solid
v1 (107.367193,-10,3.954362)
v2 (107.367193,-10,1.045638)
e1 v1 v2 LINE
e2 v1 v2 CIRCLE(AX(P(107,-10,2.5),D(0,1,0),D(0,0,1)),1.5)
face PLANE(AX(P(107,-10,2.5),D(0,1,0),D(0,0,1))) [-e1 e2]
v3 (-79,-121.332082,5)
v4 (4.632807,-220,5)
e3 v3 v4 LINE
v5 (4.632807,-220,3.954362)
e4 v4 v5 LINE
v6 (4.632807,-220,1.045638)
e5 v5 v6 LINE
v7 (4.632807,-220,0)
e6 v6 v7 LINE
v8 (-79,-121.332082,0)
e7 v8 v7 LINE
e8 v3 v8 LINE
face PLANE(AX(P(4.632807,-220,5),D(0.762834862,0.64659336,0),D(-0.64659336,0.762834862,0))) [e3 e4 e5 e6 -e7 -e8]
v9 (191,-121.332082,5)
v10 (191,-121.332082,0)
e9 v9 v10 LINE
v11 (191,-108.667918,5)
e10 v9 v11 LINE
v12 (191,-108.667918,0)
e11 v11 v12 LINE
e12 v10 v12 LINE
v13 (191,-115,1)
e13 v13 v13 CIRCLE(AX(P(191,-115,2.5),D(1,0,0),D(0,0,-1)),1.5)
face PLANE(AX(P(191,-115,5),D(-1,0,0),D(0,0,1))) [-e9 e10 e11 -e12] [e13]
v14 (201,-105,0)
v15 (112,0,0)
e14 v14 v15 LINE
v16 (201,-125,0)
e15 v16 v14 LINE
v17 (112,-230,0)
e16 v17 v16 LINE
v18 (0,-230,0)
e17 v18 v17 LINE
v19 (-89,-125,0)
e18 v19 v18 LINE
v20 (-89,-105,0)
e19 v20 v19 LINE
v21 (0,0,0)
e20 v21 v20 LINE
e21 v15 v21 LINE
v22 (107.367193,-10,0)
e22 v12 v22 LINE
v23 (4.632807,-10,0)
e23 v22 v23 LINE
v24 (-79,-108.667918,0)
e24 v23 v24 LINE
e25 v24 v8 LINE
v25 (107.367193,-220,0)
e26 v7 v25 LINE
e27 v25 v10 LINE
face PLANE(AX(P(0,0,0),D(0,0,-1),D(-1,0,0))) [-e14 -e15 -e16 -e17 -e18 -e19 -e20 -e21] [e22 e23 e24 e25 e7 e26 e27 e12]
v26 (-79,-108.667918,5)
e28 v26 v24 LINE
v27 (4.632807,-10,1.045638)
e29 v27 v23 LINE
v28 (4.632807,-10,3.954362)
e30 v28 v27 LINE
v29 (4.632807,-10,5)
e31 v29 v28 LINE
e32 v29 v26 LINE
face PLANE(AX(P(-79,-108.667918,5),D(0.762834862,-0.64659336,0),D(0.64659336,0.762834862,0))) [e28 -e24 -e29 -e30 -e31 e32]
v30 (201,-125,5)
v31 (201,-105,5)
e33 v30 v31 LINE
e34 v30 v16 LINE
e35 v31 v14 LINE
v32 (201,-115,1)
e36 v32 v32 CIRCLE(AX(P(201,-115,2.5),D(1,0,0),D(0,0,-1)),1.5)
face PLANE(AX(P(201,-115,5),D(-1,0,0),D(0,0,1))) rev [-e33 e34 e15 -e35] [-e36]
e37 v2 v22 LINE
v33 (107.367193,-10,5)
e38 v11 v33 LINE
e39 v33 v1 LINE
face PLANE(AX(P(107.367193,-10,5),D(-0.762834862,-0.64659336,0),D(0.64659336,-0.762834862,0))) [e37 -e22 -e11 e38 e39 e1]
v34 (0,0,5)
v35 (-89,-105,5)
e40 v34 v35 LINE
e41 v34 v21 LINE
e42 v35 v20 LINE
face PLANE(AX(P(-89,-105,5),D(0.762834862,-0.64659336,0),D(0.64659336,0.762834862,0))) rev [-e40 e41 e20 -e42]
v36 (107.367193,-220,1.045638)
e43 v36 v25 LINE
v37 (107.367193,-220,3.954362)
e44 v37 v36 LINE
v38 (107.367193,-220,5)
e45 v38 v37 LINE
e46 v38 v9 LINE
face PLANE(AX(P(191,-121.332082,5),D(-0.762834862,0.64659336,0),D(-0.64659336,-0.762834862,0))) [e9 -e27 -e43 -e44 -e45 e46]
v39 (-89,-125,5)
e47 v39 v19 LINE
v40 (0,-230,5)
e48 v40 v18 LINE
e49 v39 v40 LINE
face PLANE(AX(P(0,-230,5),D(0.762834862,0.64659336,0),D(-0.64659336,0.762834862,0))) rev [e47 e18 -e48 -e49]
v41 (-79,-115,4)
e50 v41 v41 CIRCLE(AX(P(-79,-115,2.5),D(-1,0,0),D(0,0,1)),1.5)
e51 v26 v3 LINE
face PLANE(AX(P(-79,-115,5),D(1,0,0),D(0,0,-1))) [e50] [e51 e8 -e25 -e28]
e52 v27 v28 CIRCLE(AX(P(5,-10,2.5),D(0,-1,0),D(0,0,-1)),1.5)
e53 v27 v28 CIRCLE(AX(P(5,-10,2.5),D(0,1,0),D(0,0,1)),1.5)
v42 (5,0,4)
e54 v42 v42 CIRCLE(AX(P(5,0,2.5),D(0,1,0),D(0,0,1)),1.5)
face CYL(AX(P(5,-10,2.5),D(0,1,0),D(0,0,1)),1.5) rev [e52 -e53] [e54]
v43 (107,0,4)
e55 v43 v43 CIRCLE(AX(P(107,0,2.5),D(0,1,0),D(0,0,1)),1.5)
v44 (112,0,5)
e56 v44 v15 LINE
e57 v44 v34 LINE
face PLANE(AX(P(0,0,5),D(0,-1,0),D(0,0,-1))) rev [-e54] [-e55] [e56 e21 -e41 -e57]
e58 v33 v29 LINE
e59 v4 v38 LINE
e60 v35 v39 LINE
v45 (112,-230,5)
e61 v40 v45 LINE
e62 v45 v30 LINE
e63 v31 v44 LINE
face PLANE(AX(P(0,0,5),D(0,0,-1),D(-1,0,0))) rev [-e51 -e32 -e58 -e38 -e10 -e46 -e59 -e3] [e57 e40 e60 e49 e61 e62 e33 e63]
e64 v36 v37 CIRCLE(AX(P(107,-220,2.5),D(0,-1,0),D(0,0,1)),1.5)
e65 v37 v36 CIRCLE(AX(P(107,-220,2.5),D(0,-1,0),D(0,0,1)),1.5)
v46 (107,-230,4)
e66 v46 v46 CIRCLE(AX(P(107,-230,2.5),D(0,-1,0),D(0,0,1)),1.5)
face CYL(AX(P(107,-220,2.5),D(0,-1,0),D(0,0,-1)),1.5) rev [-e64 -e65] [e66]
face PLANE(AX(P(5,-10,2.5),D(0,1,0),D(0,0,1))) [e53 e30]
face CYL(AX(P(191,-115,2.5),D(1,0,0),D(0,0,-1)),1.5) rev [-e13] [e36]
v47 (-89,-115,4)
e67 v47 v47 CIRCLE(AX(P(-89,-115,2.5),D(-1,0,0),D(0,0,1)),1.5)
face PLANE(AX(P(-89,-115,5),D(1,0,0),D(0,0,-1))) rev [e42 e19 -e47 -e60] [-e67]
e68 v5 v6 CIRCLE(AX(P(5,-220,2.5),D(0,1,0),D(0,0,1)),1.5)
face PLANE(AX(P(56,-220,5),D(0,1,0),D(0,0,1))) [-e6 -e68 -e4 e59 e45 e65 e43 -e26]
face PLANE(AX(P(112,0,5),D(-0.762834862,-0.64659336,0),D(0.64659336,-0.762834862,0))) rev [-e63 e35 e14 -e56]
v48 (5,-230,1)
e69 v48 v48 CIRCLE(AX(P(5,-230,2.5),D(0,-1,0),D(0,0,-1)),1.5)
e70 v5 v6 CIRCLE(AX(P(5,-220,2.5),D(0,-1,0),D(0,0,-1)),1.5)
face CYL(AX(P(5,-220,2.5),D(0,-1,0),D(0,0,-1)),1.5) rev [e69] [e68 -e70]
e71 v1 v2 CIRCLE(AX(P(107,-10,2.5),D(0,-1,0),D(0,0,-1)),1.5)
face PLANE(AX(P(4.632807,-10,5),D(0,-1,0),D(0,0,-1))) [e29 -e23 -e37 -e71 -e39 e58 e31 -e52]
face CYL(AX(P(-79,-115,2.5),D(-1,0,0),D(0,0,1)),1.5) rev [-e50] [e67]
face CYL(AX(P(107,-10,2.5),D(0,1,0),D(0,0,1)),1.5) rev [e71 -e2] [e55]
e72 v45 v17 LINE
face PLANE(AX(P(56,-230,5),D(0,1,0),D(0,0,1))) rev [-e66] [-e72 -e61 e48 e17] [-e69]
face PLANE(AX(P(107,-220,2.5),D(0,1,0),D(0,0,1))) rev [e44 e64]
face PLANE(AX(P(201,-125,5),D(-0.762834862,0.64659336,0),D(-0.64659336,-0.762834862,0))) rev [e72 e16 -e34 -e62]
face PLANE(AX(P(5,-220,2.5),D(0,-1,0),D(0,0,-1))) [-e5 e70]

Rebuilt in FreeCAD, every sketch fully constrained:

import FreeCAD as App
import Part
import Sketcher
Q = App.Units.Quantity


def add_polygon(sketch, points):
    """Adds a closed chain of lines whose ends are joined by coincident constraints."""
    first, n = sketch.GeometryCount, len(points)
    for a, b in zip(points, points[1:] + points[:1]):
        sketch.addGeometry(Part.LineSegment(App.Vector(*a, 0), App.Vector(*b, 0)), False)
    for i in range(n):
        sketch.addConstraint(Sketcher.Constraint("Coincident", first + i, 2, first + (i + 1) % n, 1))

doc = App.newDocument("Part")
body = doc.addObject("PartDesign::Body", "Body")

# Sketch on XY plane
sketch1 = doc.addObject("Sketcher::SketchObject", "Sketch")
body.addObject(sketch1)
sketch1.AttachmentSupport = (doc.XY_Plane, [""])
sketch1.MapMode = "FlatFace"
add_polygon(sketch1, [(112, 0), (0, 0), (-89, -105), (-89, -125), (0, -230), (112, -230), (201, -125), (201, -105)])  # lines 0-7
add_polygon(sketch1, [(4.632807, -10), (107.367193, -10), (191, -108.667918), (191, -121.332082), (107.367193, -220), (4.632807, -220), (-79, -121.332082), (-79, -108.667918)])  # lines 8-15
sketch1.addConstraint([
    Sketcher.Constraint("Horizontal", 0),
    Sketcher.Constraint("Vertical", 2),
    Sketcher.Constraint("Horizontal", 4),
    Sketcher.Constraint("Vertical", 6),
    Sketcher.Constraint("Horizontal", 8),
    Sketcher.Constraint("Vertical", 10),
    Sketcher.Constraint("Horizontal", 12),
    Sketcher.Constraint("Vertical", 14),
    Sketcher.Constraint("Coincident", 0, 2, -1, 1),
    Sketcher.Constraint("PointOnObject", 3, 2, -2),
    Sketcher.Constraint("Parallel", 1, 5),
    Sketcher.Constraint("Parallel", 3, 7),
    Sketcher.Constraint("Parallel", 7, 9),
    Sketcher.Constraint("Parallel", 5, 11),
    Sketcher.Constraint("Parallel", 9, 13),
    Sketcher.Constraint("Parallel", 11, 15),
    Sketcher.Constraint("Horizontal", 2, 2, 5, 2),
    Sketcher.Constraint("Horizontal", 1, 2, 6, 2),
    Sketcher.Constraint("Horizontal", 10, 2, 13, 2),
    Sketcher.Constraint("Horizontal", 9, 2, 14, 2),
    Sketcher.Constraint("Vertical", 4, 2, 7, 2),
    Sketcher.Constraint("Vertical", 8, 2, 11, 2),
    Sketcher.Constraint("DistanceX", 0, 2, 0, 1, Q("112 mm")),
    Sketcher.Constraint("DistanceY", 2, 2, 2, 1, Q("20 mm")),
    Sketcher.Constraint("DistanceX", 1, 2, -1, 1, Q("89 mm")),
    Sketcher.Constraint("DistanceY", 1, 2, -1, 1, Q("105 mm")),
    Sketcher.Constraint("DistanceY", 8, 2, -1, 1, Q("10 mm")),
    Sketcher.Constraint("DistanceX", -1, 1, 9, 2, Q("191 mm")),
    Sketcher.Constraint("DistanceY", 11, 2, -1, 1, Q("220 mm")),
    Sketcher.Constraint("DistanceX", 13, 2, -1, 1, Q("79 mm")),
    Sketcher.Constraint("DistanceX", 8, 1, 8, 2, Q("102.734387 mm")),
])
pad1 = doc.addObject("PartDesign::Pad", "Pad")
body.addObject(pad1)
pad1.Profile = sketch1
pad1.Length = 5

# Sketch on XZ plane
sketch2 = doc.addObject("Sketcher::SketchObject", "Sketch001")
body.addObject(sketch2)
sketch2.AttachmentSupport = (doc.XZ_Plane, [""])
sketch2.MapMode = "FlatFace"
sketch2.addGeometry([
    Part.Circle(App.Vector(5, 2.5, 0), App.Vector(0, 0, 1), 1.5),
    Part.Circle(App.Vector(107, 2.5, 0), App.Vector(0, 0, 1), 1.5),
], False)
sketch2.addConstraint([
    Sketcher.Constraint("Equal", 0, 1),
    Sketcher.Constraint("Horizontal", 0, 3, 1, 3),
    Sketcher.Constraint("Diameter", 0, Q("3 mm")),
    Sketcher.Constraint("DistanceX", -1, 1, 0, 3, Q("5 mm")),
    Sketcher.Constraint("DistanceX", -1, 1, 1, 3, Q("107 mm")),
    Sketcher.Constraint("DistanceY", -1, 1, 0, 3, Q("2.5 mm")),
])
pocket1 = doc.addObject("PartDesign::Pocket", "Pocket")
body.addObject(pocket1)
pocket1.Profile = sketch2
pocket1.Length = 10
pocket1.Reversed = True

# Sketch on XZ plane
sketch3 = doc.addObject("Sketcher::SketchObject", "Sketch002")
body.addObject(sketch3)
sketch3.AttachmentSupport = (doc.XZ_Plane, [""])
sketch3.MapMode = "FlatFace"
sketch3.AttachmentOffset = App.Placement(App.Vector(0, 0, 220), App.Rotation())
sketch3.addGeometry([
    Part.Circle(App.Vector(5, 2.5, 0), App.Vector(0, 0, 1), 1.5),
    Part.Circle(App.Vector(107, 2.5, 0), App.Vector(0, 0, 1), 1.5),
], False)
sketch3.addConstraint([
    Sketcher.Constraint("Equal", 0, 1),
    Sketcher.Constraint("Horizontal", 0, 3, 1, 3),
    Sketcher.Constraint("Diameter", 0, Q("3 mm")),
    Sketcher.Constraint("DistanceX", -1, 1, 0, 3, Q("5 mm")),
    Sketcher.Constraint("DistanceX", -1, 1, 1, 3, Q("107 mm")),
    Sketcher.Constraint("DistanceY", -1, 1, 0, 3, Q("2.5 mm")),
])
pocket2 = doc.addObject("PartDesign::Pocket", "Pocket001")
body.addObject(pocket2)
pocket2.Profile = sketch3
pocket2.Length = 10
pocket2.Reversed = True

# Sketch on YZ plane
sketch4 = doc.addObject("Sketcher::SketchObject", "Sketch003")
body.addObject(sketch4)
sketch4.AttachmentSupport = (doc.YZ_Plane, [""])
sketch4.MapMode = "FlatFace"
sketch4.AttachmentOffset = App.Placement(App.Vector(0, 0, -89), App.Rotation())
sketch4.addGeometry(Part.Circle(App.Vector(-115, 2.5, 0), App.Vector(0, 0, 1), 1.5), False)
sketch4.addConstraint([
    Sketcher.Constraint("Diameter", 0, Q("3 mm")),
    Sketcher.Constraint("DistanceX", 0, 3, -1, 1, Q("115 mm")),
    Sketcher.Constraint("DistanceY", -1, 1, 0, 3, Q("2.5 mm")),
])
pocket3 = doc.addObject("PartDesign::Pocket", "Pocket002")
body.addObject(pocket3)
pocket3.Profile = sketch4
pocket3.Length = 10
pocket3.Reversed = True

# Sketch on YZ plane
sketch5 = doc.addObject("Sketcher::SketchObject", "Sketch004")
body.addObject(sketch5)
sketch5.AttachmentSupport = (doc.YZ_Plane, [""])
sketch5.MapMode = "FlatFace"
sketch5.AttachmentOffset = App.Placement(App.Vector(0, 0, 191), App.Rotation())
sketch5.addGeometry(Part.Circle(App.Vector(-115, 2.5, 0), App.Vector(0, 0, 1), 1.5), False)
sketch5.addConstraint([
    Sketcher.Constraint("Diameter", 0, Q("3 mm")),
    Sketcher.Constraint("DistanceX", 0, 3, -1, 1, Q("115 mm")),
    Sketcher.Constraint("DistanceY", -1, 1, 0, 3, Q("2.5 mm")),
])
pocket4 = doc.addObject("PartDesign::Pocket", "Pocket003")
body.addObject(pocket4)
pocket4.Profile = sketch5
pocket4.Length = 10
pocket4.Reversed = True

doc.recompute()
